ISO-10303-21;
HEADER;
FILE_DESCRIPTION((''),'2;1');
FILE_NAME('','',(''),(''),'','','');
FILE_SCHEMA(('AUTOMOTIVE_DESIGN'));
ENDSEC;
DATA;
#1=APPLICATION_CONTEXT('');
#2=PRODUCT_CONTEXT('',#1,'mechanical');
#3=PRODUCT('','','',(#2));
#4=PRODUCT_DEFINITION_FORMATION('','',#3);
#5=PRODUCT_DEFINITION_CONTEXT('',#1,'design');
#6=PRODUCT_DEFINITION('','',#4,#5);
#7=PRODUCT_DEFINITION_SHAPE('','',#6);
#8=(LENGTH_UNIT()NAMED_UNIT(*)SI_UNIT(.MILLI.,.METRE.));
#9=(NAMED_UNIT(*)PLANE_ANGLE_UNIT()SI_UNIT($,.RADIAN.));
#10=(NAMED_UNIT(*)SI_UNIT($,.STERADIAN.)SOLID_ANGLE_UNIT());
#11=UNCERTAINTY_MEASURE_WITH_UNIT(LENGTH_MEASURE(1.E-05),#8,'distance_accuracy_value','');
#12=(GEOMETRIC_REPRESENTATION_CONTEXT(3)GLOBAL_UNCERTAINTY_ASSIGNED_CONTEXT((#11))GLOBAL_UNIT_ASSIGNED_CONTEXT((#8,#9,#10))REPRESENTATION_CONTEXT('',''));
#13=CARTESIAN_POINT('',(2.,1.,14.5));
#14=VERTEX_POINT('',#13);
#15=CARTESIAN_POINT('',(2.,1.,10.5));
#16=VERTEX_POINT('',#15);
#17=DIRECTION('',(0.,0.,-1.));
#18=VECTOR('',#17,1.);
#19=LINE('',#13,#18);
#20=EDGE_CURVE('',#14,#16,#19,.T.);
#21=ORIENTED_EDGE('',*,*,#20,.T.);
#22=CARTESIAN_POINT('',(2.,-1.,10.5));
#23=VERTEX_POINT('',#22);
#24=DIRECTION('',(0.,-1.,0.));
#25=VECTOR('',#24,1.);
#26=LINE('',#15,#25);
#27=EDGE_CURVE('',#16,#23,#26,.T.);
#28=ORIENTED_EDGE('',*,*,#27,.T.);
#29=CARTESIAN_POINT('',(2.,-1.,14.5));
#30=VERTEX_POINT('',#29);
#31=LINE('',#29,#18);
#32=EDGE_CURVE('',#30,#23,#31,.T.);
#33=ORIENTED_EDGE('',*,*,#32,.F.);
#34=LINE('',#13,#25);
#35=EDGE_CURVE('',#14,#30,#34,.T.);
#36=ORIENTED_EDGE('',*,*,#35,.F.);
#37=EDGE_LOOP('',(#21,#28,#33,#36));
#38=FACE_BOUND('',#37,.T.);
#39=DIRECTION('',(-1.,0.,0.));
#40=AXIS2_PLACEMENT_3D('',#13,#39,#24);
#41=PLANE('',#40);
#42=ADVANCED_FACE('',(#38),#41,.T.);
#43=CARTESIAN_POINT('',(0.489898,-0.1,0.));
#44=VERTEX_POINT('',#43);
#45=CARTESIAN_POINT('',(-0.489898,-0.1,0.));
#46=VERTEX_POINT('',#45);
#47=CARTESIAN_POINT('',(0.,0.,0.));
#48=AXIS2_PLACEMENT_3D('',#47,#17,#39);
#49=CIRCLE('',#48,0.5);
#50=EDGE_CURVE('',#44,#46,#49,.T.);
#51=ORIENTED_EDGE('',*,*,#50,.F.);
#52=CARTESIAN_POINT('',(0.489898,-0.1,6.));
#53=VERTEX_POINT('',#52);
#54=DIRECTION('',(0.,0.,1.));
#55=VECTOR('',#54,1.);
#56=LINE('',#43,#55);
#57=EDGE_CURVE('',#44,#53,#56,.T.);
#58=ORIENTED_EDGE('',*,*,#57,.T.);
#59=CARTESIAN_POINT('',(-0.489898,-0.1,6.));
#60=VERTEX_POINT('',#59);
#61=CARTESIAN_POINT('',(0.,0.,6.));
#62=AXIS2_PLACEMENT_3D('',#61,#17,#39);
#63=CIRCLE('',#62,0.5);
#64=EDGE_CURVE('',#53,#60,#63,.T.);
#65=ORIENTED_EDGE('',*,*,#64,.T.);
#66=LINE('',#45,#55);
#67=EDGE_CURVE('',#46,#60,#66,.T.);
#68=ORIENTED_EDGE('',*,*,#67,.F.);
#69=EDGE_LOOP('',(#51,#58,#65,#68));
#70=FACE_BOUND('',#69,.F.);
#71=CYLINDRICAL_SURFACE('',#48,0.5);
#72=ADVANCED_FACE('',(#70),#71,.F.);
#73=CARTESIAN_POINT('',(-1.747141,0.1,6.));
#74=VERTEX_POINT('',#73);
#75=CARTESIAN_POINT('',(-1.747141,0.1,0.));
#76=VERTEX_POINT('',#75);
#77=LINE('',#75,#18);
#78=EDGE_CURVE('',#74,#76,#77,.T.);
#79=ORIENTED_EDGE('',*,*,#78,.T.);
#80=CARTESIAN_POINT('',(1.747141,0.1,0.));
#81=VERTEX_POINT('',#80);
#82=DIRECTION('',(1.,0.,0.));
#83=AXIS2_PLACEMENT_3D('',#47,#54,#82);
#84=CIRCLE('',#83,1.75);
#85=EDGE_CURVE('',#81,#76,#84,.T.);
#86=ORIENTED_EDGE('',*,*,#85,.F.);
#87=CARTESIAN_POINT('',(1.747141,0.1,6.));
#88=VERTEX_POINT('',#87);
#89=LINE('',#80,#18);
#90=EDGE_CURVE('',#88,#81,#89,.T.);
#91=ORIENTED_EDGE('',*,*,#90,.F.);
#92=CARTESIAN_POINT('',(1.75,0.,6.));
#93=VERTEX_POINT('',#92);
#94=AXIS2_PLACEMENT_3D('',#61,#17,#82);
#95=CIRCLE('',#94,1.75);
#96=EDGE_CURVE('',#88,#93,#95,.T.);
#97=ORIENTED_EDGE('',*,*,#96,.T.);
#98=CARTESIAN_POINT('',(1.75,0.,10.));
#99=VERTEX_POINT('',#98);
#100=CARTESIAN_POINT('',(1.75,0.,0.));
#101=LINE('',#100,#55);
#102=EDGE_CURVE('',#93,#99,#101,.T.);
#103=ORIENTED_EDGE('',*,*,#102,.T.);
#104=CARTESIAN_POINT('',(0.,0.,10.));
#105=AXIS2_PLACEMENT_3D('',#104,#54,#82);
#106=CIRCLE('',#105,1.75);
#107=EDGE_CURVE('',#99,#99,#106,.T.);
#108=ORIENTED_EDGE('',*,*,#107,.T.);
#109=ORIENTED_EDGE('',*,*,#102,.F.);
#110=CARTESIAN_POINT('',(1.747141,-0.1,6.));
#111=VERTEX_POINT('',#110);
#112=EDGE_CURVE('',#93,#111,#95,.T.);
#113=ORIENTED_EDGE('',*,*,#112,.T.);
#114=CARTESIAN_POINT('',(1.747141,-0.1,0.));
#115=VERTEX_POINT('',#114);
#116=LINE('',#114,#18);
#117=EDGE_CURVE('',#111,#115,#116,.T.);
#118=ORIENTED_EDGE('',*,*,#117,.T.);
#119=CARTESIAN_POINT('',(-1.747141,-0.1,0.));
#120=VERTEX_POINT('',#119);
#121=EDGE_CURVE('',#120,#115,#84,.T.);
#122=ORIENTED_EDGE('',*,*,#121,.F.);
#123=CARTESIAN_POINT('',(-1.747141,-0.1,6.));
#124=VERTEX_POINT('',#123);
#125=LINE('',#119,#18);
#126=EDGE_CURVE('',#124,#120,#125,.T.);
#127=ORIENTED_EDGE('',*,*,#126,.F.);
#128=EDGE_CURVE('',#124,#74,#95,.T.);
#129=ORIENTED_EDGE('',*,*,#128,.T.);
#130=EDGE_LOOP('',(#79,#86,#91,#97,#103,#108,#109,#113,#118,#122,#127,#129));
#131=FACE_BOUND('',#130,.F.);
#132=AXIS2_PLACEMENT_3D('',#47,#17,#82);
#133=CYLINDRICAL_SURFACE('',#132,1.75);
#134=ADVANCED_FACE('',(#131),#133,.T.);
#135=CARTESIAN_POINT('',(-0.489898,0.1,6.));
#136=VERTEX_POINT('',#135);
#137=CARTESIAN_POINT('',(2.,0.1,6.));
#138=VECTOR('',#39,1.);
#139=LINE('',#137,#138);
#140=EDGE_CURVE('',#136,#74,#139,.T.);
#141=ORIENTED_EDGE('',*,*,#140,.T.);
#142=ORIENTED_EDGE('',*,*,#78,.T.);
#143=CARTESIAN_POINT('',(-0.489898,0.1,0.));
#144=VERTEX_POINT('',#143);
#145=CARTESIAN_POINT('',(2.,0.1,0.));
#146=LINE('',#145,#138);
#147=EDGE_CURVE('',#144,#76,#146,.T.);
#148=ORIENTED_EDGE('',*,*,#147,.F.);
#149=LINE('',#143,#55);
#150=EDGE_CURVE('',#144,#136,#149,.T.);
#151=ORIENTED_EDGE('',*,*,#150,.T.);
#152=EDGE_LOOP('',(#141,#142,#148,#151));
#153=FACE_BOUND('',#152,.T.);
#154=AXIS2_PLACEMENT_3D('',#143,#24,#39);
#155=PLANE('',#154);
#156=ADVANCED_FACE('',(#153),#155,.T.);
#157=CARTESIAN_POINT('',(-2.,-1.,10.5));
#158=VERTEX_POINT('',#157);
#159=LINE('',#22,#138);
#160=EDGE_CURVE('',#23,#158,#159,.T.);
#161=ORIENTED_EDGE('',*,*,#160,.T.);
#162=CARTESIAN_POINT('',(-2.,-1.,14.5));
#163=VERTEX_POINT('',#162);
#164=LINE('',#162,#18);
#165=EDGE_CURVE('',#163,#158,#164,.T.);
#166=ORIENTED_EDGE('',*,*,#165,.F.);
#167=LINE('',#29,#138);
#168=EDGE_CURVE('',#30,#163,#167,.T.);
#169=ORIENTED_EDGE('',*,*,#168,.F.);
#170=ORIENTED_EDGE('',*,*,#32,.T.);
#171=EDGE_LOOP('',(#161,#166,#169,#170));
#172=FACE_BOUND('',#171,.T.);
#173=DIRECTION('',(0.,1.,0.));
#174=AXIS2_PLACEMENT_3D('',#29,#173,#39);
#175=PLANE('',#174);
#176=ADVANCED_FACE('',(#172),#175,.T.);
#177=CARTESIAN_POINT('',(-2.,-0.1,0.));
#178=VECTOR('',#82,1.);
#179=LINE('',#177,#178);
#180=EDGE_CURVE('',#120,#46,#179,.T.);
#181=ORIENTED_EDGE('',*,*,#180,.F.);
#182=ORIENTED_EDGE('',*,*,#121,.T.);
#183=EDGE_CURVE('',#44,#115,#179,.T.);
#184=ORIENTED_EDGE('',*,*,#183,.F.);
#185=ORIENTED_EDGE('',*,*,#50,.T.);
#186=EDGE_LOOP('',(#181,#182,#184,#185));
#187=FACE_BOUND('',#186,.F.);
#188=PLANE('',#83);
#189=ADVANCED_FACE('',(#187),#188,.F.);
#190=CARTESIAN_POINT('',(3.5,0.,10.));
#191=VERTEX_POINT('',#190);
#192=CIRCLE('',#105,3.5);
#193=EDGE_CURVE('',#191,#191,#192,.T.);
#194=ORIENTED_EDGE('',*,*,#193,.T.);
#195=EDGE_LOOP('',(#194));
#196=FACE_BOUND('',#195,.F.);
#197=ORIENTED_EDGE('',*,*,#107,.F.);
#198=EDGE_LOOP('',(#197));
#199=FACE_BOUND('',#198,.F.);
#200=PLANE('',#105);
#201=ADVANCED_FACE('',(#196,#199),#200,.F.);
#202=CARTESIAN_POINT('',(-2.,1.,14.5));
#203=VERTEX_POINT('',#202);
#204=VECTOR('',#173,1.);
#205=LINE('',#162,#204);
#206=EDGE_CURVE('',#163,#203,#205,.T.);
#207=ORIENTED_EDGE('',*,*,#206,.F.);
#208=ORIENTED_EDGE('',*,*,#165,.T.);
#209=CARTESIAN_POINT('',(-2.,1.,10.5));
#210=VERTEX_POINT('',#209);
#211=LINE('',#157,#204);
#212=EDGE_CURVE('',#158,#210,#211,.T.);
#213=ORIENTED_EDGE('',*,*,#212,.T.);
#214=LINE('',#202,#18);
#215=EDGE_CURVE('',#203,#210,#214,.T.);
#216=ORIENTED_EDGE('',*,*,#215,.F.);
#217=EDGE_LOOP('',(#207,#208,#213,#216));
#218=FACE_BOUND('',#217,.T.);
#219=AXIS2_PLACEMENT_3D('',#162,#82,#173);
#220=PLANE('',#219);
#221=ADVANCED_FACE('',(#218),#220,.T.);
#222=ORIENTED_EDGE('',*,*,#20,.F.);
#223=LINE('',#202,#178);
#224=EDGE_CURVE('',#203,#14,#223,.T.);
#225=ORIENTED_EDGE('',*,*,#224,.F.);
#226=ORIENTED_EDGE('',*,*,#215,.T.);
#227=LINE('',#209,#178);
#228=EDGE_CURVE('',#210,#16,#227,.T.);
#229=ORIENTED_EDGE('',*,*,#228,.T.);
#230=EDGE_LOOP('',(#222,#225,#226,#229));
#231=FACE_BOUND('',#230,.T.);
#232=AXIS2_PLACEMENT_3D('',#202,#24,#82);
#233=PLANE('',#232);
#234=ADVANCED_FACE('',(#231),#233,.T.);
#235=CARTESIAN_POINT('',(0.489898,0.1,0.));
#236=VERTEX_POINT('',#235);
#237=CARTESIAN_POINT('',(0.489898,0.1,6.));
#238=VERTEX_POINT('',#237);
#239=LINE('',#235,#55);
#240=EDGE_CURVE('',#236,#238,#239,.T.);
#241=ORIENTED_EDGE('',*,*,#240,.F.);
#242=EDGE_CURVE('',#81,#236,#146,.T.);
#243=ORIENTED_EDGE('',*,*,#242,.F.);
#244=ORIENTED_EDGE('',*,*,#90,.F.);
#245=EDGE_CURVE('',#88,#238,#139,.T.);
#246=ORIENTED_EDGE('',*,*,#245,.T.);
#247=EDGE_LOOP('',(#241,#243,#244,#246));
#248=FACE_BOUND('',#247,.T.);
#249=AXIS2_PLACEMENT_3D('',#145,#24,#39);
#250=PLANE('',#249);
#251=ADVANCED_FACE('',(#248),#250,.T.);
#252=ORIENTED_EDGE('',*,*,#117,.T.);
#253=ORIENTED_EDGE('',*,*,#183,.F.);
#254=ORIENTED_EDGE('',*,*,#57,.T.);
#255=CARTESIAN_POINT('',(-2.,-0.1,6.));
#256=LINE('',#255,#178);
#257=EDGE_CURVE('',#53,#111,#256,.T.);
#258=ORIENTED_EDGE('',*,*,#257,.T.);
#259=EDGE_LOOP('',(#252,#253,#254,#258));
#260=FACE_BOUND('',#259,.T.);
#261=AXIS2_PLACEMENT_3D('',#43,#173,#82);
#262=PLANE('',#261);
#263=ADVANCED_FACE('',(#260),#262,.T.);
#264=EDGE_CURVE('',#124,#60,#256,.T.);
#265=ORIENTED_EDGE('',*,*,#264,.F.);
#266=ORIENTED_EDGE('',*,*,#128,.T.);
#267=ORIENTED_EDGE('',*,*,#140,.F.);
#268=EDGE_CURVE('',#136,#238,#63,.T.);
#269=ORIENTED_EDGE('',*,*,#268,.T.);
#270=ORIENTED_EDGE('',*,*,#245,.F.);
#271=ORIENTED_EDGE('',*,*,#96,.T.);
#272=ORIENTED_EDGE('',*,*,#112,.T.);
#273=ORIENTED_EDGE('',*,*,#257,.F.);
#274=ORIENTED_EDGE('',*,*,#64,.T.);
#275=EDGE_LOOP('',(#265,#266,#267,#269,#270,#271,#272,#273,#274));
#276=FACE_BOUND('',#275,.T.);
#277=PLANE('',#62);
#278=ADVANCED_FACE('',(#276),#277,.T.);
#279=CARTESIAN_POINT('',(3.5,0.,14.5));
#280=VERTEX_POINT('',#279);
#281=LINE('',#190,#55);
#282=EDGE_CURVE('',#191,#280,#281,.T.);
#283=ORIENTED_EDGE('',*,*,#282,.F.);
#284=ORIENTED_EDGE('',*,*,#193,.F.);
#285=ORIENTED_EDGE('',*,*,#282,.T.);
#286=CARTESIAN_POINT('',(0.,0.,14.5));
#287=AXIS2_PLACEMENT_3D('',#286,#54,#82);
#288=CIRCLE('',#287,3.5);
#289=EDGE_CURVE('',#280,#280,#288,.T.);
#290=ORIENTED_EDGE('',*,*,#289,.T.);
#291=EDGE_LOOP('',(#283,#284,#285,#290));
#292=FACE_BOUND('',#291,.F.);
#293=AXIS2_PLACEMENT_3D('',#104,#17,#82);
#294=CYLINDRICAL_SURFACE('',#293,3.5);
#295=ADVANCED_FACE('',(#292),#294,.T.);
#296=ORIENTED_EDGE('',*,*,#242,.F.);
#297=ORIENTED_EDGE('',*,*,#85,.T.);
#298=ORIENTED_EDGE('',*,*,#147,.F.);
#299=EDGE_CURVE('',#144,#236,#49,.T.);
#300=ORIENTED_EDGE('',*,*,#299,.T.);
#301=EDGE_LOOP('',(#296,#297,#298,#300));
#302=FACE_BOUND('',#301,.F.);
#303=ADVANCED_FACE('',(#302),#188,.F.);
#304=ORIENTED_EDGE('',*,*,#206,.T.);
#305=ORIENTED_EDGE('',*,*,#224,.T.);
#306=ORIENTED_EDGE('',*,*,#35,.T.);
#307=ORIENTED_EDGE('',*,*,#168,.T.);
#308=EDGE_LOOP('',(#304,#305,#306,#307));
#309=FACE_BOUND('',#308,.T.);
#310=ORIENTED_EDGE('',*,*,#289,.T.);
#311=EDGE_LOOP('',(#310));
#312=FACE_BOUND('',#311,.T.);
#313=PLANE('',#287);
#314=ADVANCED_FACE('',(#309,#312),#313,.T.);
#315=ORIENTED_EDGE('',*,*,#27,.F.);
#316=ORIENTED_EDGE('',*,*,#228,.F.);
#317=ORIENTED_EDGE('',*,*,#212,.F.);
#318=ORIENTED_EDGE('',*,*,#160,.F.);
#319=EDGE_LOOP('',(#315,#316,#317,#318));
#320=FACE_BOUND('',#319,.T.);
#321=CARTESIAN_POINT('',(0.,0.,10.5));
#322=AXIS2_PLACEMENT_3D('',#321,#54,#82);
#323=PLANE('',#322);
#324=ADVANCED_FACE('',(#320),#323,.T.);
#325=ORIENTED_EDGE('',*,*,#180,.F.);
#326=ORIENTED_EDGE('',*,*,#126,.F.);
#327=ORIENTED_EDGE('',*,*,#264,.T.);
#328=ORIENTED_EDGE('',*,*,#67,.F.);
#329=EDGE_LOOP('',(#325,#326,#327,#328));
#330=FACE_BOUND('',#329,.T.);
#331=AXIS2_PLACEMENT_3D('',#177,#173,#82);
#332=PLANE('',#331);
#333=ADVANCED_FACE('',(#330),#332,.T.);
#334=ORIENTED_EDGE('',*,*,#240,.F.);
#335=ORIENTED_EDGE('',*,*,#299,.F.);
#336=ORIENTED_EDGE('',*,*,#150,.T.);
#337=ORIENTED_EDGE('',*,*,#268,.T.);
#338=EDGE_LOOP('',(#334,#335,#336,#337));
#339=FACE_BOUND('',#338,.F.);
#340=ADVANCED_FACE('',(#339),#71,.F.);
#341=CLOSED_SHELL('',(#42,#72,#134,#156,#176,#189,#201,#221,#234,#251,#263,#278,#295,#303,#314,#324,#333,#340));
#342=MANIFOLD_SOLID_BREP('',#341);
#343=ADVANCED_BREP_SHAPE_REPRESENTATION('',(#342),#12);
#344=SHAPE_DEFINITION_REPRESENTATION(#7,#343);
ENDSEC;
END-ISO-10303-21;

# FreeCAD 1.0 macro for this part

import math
import FreeCAD as App
import Part
import Sketcher


def add_polygon(sketch, points):
    """Adds a closed chain of lines whose ends are joined by coincident constraints."""
    first, n = sketch.GeometryCount, len(points)
    for a, b in zip(points, points[1:] + points[:1]):
        sketch.addGeometry(Part.LineSegment(App.Vector(*a, 0), App.Vector(*b, 0)), False)
    for i in range(n):
        sketch.addConstraint(Sketcher.Constraint("Coincident", first + i, 2, first + (i + 1) % n, 1))

doc = App.newDocument("Part")
params = doc.addObject("Spreadsheet::Sheet", "Params")
for row, (alias, value) in enumerate([
    ("sketch1_diameter", "3.5 mm"),
    ("pad1_length", "10 mm"),
    ("sketch2_diameter", "7 mm"),
    ("pad2_length", "4.5 mm"),
    ("sketch3_width", "4 mm"),
    ("sketch3_height", "2 mm"),
    ("pocket1_length", "4 mm"),
    ("sketch4_radius", "0.5 mm"),
    ("sketch4_height", "0.2 mm"),
    ("pocket2_length", "6 mm"),
], start=1):
    params.set(f"A{row}", alias)
    params.set(f"B{row}", "=" + value)
    params.setAlias(f"B{row}", alias)

body = doc.addObject("PartDesign::Body", "Body")

sketch1 = doc.addObject("Sketcher::SketchObject", "Sketch")
body.addObject(sketch1)
sketch1.AttachmentSupport = (doc.XY_Plane, [""])
sketch1.MapMode = "FlatFace"
sketch1.addGeometry(Part.Circle(App.Vector(0, 0, 0), App.Vector(0, 0, 1), 1.8), False)
sketch1.addConstraint([
    Sketcher.Constraint("Coincident", 0, 3, -1, 1),
    Sketcher.Constraint("Diameter", 0, 3.5),
])
sketch1.setExpression("Constraints[1]", "Params.sketch1_diameter")
pad1 = doc.addObject("PartDesign::Pad", "Pad")
body.addObject(pad1)
pad1.Profile = sketch1
pad1.setExpression("Length", "Params.pad1_length")

sketch2 = doc.addObject("Sketcher::SketchObject", "Sketch001")
body.addObject(sketch2)
sketch2.AttachmentSupport = (doc.XY_Plane, [""])
sketch2.MapMode = "FlatFace"
sketch2.AttachmentOffset = App.Placement(App.Vector(0, 0, 10), App.Rotation())
sketch2.addGeometry(Part.Circle(App.Vector(0, 0, 0), App.Vector(0, 0, 1), 3.5), False)
sketch2.addConstraint([
    Sketcher.Constraint("Coincident", 0, 3, -1, 1),
    Sketcher.Constraint("Diameter", 0, 7.0),
])
sketch2.setExpression("Constraints[1]", "Params.sketch2_diameter")
pad2 = doc.addObject("PartDesign::Pad", "Pad001")
body.addObject(pad2)
pad2.Profile = sketch2
pad2.setExpression("Length", "Params.pad2_length")

sketch3 = doc.addObject("Sketcher::SketchObject", "Sketch002")
body.addObject(sketch3)
sketch3.AttachmentSupport = (doc.XY_Plane, [""])
sketch3.MapMode = "FlatFace"
sketch3.AttachmentOffset = App.Placement(App.Vector(0, 0, 14.5), App.Rotation())
add_polygon(sketch3, [(2, 1), (-2, 1), (-2, -1), (2, -1)])
sketch3.addConstraint([
    Sketcher.Constraint("Horizontal", 0),
    Sketcher.Constraint("Vertical", 1),
    Sketcher.Constraint("Horizontal", 2),
    Sketcher.Constraint("Vertical", 3),
    Sketcher.Constraint("Symmetric", 0, 2, 2, 2, -1, 1),
    Sketcher.Constraint("DistanceX", 0, 2, 0, 1, 4.0),
    Sketcher.Constraint("DistanceY", 1, 2, 1, 1, 2.0),
])
sketch3.setExpression("Constraints[9]", "Params.sketch3_width")
sketch3.setExpression("Constraints[10]", "Params.sketch3_height")
pocket1 = doc.addObject("PartDesign::Pocket", "Pocket")
body.addObject(pocket1)
pocket1.Profile = sketch3
pocket1.setExpression("Length", "Params.pocket1_length")

sketch4 = doc.addObject("Sketcher::SketchObject", "Sketch003")
body.addObject(sketch4)
sketch4.AttachmentSupport = (doc.XY_Plane, [""])
sketch4.MapMode = "FlatFace"
sketch4.addGeometry([
    Part.LineSegment(App.Vector(-0.49, -0.1, 0), App.Vector(-2, -0.1, 0)),
    Part.LineSegment(App.Vector(-2, -0.1, 0), App.Vector(-2, 0.1, 0)),
    Part.LineSegment(App.Vector(-2, 0.1, 0), App.Vector(-0.49, 0.1, 0)),
    Part.ArcOfCircle(Part.Circle(App.Vector(0, 0, 0), App.Vector(0, 0, 1), 0.5), math.radians(12), math.radians(168)),
    Part.LineSegment(App.Vector(0.49, 0.1, 0), App.Vector(2, 0.1, 0)),
    Part.LineSegment(App.Vector(2, 0.1, 0), App.Vector(2, -0.1, 0)),
    Part.LineSegment(App.Vector(2, -0.1, 0), App.Vector(0.49, -0.1, 0)),
    Part.ArcOfCircle(Part.Circle(App.Vector(0, 0, 0), App.Vector(0, 0, 1), 0.5), math.radians(-168), math.radians(-12)),
], False)
sketch4.addConstraint([
    Sketcher.Constraint("Coincident", 0, 2, 1, 1),
    Sketcher.Constraint("Coincident", 1, 2, 2, 1),
    Sketcher.Constraint("Coincident", 2, 2, 3, 2),
    Sketcher.Constraint("Coincident", 3, 1, 4, 1),
    Sketcher.Constraint("Coincident", 4, 2, 5, 1),
    Sketcher.Constraint("Coincident", 5, 2, 6, 1),
    Sketcher.Constraint("Coincident", 6, 2, 7, 2),
    Sketcher.Constraint("Coincident", 7, 1, 0, 1),
    Sketcher.Constraint("Horizontal", 0),
    Sketcher.Constraint("Vertical", 1),
    Sketcher.Constraint("Horizontal", 2),
    Sketcher.Constraint("Horizontal", 4),
    Sketcher.Constraint("Vertical", 5),
    Sketcher.Constraint("Horizontal", 6),
    Sketcher.Constraint("Coincident", 3, 3, -1, 1),
    Sketcher.Constraint("Coincident", 7, 3, -1, 1),
    Sketcher.Constraint("Equal", 3, 7),
    Sketcher.Constraint("Symmetric", 0, 2, 4, 2, -1, 1),
    Sketcher.Constraint("Horizontal", 2, 2, 3, 1),
    Sketcher.Constraint("Horizontal", 0, 2, 5, 2),
    Sketcher.Constraint("Radius", 3, 0.5),
    Sketcher.Constraint("DistanceY", 1, 1, 1, 2, 0.2),
    Sketcher.Constraint("DistanceX", 1, 2, 4, 2, 4.0),
])
sketch4.setExpression("Constraints[20]", "Params.sketch4_radius")
sketch4.setExpression("Constraints[21]", "Params.sketch4_height")
pocket2 = doc.addObject("PartDesign::Pocket", "Pocket001")
body.addObject(pocket2)
pocket2.Profile = sketch4
pocket2.setExpression("Length", "Params.pocket2_length")
pocket2.Reversed = True

doc.recompute()
